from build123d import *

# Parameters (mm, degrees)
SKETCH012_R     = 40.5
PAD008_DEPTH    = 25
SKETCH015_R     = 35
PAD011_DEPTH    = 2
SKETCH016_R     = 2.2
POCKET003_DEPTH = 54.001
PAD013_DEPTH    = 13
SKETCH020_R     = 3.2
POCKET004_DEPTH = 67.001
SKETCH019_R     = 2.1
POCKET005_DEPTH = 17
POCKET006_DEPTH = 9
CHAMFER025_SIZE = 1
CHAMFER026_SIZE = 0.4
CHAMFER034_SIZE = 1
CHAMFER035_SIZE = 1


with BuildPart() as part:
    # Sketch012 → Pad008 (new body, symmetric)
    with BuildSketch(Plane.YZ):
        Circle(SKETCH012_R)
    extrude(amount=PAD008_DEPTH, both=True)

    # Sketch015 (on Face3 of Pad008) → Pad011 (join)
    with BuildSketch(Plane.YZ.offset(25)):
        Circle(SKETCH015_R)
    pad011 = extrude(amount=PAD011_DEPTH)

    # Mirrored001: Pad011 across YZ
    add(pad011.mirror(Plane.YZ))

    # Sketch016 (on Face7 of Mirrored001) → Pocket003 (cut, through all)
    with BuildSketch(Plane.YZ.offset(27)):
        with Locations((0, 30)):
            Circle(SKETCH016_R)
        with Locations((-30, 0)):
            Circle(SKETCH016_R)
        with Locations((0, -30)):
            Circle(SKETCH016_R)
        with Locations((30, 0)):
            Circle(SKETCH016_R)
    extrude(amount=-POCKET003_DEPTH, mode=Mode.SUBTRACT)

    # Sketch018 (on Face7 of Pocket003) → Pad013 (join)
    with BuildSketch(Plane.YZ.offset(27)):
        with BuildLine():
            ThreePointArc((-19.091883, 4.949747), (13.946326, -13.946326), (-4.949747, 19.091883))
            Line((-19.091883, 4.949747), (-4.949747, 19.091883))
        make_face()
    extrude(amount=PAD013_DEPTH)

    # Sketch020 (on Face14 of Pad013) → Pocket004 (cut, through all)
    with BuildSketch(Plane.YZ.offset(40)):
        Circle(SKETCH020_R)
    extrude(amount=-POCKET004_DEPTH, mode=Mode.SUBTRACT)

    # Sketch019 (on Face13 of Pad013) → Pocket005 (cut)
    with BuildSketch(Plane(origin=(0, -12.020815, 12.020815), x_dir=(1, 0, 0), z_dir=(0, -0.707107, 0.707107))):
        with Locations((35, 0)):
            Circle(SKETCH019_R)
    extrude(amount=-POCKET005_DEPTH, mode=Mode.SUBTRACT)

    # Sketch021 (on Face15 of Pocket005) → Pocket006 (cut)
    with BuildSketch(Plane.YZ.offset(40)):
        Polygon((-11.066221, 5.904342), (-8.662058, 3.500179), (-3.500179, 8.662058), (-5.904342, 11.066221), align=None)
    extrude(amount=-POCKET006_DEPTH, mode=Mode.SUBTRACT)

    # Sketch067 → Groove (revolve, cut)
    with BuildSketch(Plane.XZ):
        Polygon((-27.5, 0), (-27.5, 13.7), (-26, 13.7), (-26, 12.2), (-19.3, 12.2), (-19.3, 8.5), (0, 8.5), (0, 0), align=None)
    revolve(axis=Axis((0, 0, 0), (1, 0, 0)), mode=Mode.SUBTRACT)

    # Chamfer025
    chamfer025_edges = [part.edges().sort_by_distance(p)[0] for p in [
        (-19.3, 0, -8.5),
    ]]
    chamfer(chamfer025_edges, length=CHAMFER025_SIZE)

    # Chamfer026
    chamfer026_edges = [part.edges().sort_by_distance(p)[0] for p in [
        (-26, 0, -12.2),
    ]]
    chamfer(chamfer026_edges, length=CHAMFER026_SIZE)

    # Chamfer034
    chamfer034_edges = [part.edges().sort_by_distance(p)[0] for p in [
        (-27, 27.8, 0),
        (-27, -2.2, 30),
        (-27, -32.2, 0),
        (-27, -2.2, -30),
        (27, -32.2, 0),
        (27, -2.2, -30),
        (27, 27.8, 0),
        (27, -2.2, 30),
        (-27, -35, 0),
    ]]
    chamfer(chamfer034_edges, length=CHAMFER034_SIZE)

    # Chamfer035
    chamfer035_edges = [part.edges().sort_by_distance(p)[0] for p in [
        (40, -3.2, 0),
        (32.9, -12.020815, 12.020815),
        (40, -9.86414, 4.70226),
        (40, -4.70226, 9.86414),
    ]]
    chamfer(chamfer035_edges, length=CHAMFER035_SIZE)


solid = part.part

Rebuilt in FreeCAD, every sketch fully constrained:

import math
import FreeCAD as App
import Part
import Sketcher
Q = App.Units.Quantity


def edges_at(feature, points):
    """Names of the edges that pass closest to the given points."""
    edges = feature.Shape.Edges
    near = lambda p: min(range(len(edges)), key=lambda i: edges[i].distToShape(Part.Vertex(*p))[0])
    return sorted({f"Edge{near(p) + 1}" for p in points})


def add_polygon(sketch, points):
    """Adds a closed chain of lines whose ends are joined by coincident constraints."""
    first, n = sketch.GeometryCount, len(points)
    for a, b in zip(points, points[1:] + points[:1]):
        sketch.addGeometry(Part.LineSegment(App.Vector(*a, 0), App.Vector(*b, 0)), False)
    for i in range(n):
        sketch.addConstraint(Sketcher.Constraint("Coincident", first + i, 2, first + (i + 1) % n, 1))

doc = App.newDocument("Part")
body = doc.addObject("PartDesign::Body", "Body")

sketch1 = doc.addObject("Sketcher::SketchObject", "Sketch")
body.addObject(sketch1)
sketch1.AttachmentSupport = (doc.YZ_Plane, [""])
sketch1.MapMode = "FlatFace"
sketch1.addGeometry(Part.Circle(App.Vector(0, 0, 0), App.Vector(0, 0, 1), 40), False)
sketch1.addConstraint([
    Sketcher.Constraint("Coincident", 0, 3, -1, 1),
    Sketcher.Constraint("Diameter", 0, 81.0),
])
pad1 = doc.addObject("PartDesign::Pad", "Pad")
body.addObject(pad1)
pad1.Profile = sketch1
pad1.Length = 50
pad1.Midplane = True

sketch2 = doc.addObject("Sketcher::SketchObject", "Sketch001")
body.addObject(sketch2)
sketch2.AttachmentSupport = (doc.YZ_Plane, [""])
sketch2.MapMode = "FlatFace"
sketch2.AttachmentOffset = App.Placement(App.Vector(0, 0, 25), App.Rotation())
sketch2.addGeometry(Part.Circle(App.Vector(0, 0, 0), App.Vector(0, 0, 1), 35), False)
sketch2.addConstraint([
    Sketcher.Constraint("Coincident", 0, 3, -1, 1),
    Sketcher.Constraint("Diameter", 0, 70.0),
])
pad2 = doc.addObject("PartDesign::Pad", "Pad001")
body.addObject(pad2)
pad2.Profile = sketch2
pad2.Length = 2
doc.recompute()

mirrored = doc.addObject("PartDesign::Mirrored", "Mirrored")
body.addObject(mirrored)
mirrored.Originals = [pad2]
mirrored.MirrorPlane = (doc.YZ_Plane, [""])
body.Tip = mirrored

sketch3 = doc.addObject("Sketcher::SketchObject", "Sketch002")
body.addObject(sketch3)
sketch3.AttachmentSupport = (doc.YZ_Plane, [""])
sketch3.MapMode = "FlatFace"
sketch3.AttachmentOffset = App.Placement(App.Vector(0, 0, 27), App.Rotation())
sketch3.addGeometry([
    Part.Circle(App.Vector(0, 30, 0), App.Vector(0, 0, 1), 2.2),
    Part.Circle(App.Vector(-30, 0, 0), App.Vector(0, 0, 1), 2.2),
    Part.Circle(App.Vector(0, -30, 0), App.Vector(0, 0, 1), 2.2),
    Part.Circle(App.Vector(30, 0, 0), App.Vector(0, 0, 1), 2.2),
], False)
sketch3.addConstraint([
    Sketcher.Constraint("Equal", 0, 1),
    Sketcher.Constraint("Equal", 1, 2),
    Sketcher.Constraint("Equal", 2, 3),
    Sketcher.Constraint("Symmetric", 0, 3, 2, 3, -1, 1),
    Sketcher.Constraint("Symmetric", 1, 3, 3, 3, -1, 1),
    Sketcher.Constraint("PointOnObject", 0, 3, -2),
    Sketcher.Constraint("PointOnObject", 1, 3, -1),
    Sketcher.Constraint("Diameter", 0, 4.4),
    Sketcher.Constraint("DistanceY", -1, 1, 0, 3, 30.0),
    Sketcher.Constraint("DistanceX", 1, 3, -1, 1, 30.0),
])
pocket1 = doc.addObject("PartDesign::Pocket", "Pocket")
body.addObject(pocket1)
pocket1.Profile = sketch3
pocket1.Type = "ThroughAll"

sketch4 = doc.addObject("Sketcher::SketchObject", "Sketch003")
body.addObject(sketch4)
sketch4.AttachmentSupport = (doc.YZ_Plane, [""])
sketch4.MapMode = "FlatFace"
sketch4.AttachmentOffset = App.Placement(App.Vector(0, 0, 27), App.Rotation())
sketch4.addGeometry([
    Part.ArcOfCircle(Part.Circle(App.Vector(0, 0, 0), App.Vector(0, 0, 1), 20), math.radians(165), math.radians(465)),
    Part.LineSegment(App.Vector(-5, 19, 0), App.Vector(-19, 5, 0)),
], False)
sketch4.addConstraint([
    Sketcher.Constraint("Coincident", 0, 1, 1, 2),
    Sketcher.Constraint("Coincident", 1, 1, 0, 2),
    Sketcher.Constraint("Coincident", 0, 3, -1, 1),
    Sketcher.Constraint("Angle", 1, Q("-135 deg")),
    Sketcher.Constraint("Distance", 1, 20.000001),
    Sketcher.Constraint("Radius", 0, 19.723083),
])
pad3 = doc.addObject("PartDesign::Pad", "Pad002")
body.addObject(pad3)
pad3.Profile = sketch4
pad3.Length = 13

sketch5 = doc.addObject("Sketcher::SketchObject", "Sketch004")
body.addObject(sketch5)
sketch5.AttachmentSupport = (doc.YZ_Plane, [""])
sketch5.MapMode = "FlatFace"
sketch5.AttachmentOffset = App.Placement(App.Vector(0, 0, 40), App.Rotation())
sketch5.addGeometry(Part.Circle(App.Vector(0, 0, 0), App.Vector(0, 0, 1), 3.2), False)
sketch5.addConstraint([
    Sketcher.Constraint("Coincident", 0, 3, -1, 1),
    Sketcher.Constraint("Diameter", 0, 6.4),
])
pocket2 = doc.addObject("PartDesign::Pocket", "Pocket001")
body.addObject(pocket2)
pocket2.Profile = sketch5
pocket2.Type = "ThroughAll"

sketch6 = doc.addObject("Sketcher::SketchObject", "Sketch005")
body.addObject(sketch6)
sketch6.Placement = App.Placement(App.Vector(0, -12.020815, 12.020815), App.Rotation(App.Vector(1, 0, 0), App.Vector(0, 0.707106781, 0.707106781), App.Vector(0, -0.707106781, 0.707106781), "ZXY"))
sketch6.addGeometry(Part.Circle(App.Vector(35, 0, 0), App.Vector(0, 0, 1), 2.1), False)
sketch6.addConstraint([
    Sketcher.Constraint("PointOnObject", 0, 3, -1),
    Sketcher.Constraint("Diameter", 0, 4.2),
    Sketcher.Constraint("DistanceX", -1, 1, 0, 3, 35.0),
])
pocket3 = doc.addObject("PartDesign::Pocket", "Pocket002")
body.addObject(pocket3)
pocket3.Profile = sketch6
pocket3.Length = 17

sketch7 = doc.addObject("Sketcher::SketchObject", "Sketch006")
body.addObject(sketch7)
sketch7.AttachmentSupport = (doc.YZ_Plane, [""])
sketch7.MapMode = "FlatFace"
sketch7.AttachmentOffset = App.Placement(App.Vector(0, 0, 40), App.Rotation())
add_polygon(sketch7, [(-11.1, 5.9), (-8.7, 3.5), (-3.5, 8.7), (-5.9, 11.1)])
sketch7.addConstraint([
    Sketcher.Constraint("Perpendicular", 0, 1),
    Sketcher.Constraint("Perpendicular", 1, 2),
    Sketcher.Constraint("Perpendicular", 2, 3),
    Sketcher.Constraint("Angle", 0, Q("-45 deg")),
    Sketcher.Constraint("Distance", 0, 3.4),
    Sketcher.Constraint("Distance", 1, 7.299999),
    Sketcher.Constraint("DistanceY", -1, 1, 0, 2, 3.500179),
    Sketcher.Constraint("DistanceX", 1, 2, -1, 1, 3.500179),
])
pocket4 = doc.addObject("PartDesign::Pocket", "Pocket003")
body.addObject(pocket4)
pocket4.Profile = sketch7
pocket4.Length = 9

sketch8 = doc.addObject("Sketcher::SketchObject", "Sketch007")
body.addObject(sketch8)
sketch8.AttachmentSupport = (doc.XZ_Plane, [""])
sketch8.MapMode = "FlatFace"
add_polygon(sketch8, [(-27.5, 13.7), (-27.5, 0), (0, 0), (0, 8.5), (-19.3, 8.5), (-19.3, 12.2), (-26, 12.2), (-26, 13.7)])
sketch8.addConstraint([
    Sketcher.Constraint("Vertical", 0),
    Sketcher.Constraint("Horizontal", 1),
    Sketcher.Constraint("Vertical", 2),
    Sketcher.Constraint("Horizontal", 3),
    Sketcher.Constraint("Vertical", 4),
    Sketcher.Constraint("Horizontal", 5),
    Sketcher.Constraint("Vertical", 6),
    Sketcher.Constraint("Horizontal", 7),
    Sketcher.Constraint("Coincident", 1, 2, -1, 1),
    Sketcher.Constraint("Equal", 7, 6),
    Sketcher.Constraint("DistanceX", 1, 1, 1, 2, 27.5),
    Sketcher.Constraint("DistanceX", 3, 2, 3, 1, 19.3),
    Sketcher.Constraint("DistanceX", 5, 2, 5, 1, 6.7),
    Sketcher.Constraint("DistanceY", 0, 2, 0, 1, 13.7),
    Sketcher.Constraint("DistanceY", 2, 1, 2, 2, 8.5),
])
groove = doc.addObject("PartDesign::Groove", "Groove")
body.addObject(groove)
groove.Profile = sketch8
groove.ReferenceAxis = (sketch8, ["H_Axis"])
groove.Angle = 360
doc.recompute()

chamfer = doc.addObject("PartDesign::Chamfer", "Chamfer")
body.addObject(chamfer)
chamfer.Base = (groove, edges_at(groove, [(-19.3, 0, -8.5)]))
chamfer.Size = 1
doc.recompute()

chamfer2 = doc.addObject("PartDesign::Chamfer", "Chamfer001")
body.addObject(chamfer2)
chamfer2.Base = (chamfer, edges_at(chamfer, [(-26, 0, -12.2)]))
chamfer2.Size = 0.4
doc.recompute()

chamfer3 = doc.addObject("PartDesign::Chamfer", "Chamfer002")
body.addObject(chamfer3)
chamfer3.Base = (chamfer2, edges_at(chamfer2, [
    (-27, 27.8, 0),
    (-27, -2.2, 30),
    (-27, -32.2, 0),
    (-27, -2.2, -30),
    (27, -32.2, 0),
    (27, -2.2, -30),
    (27, 27.8, 0),
    (27, -2.2, 30),
    (-27, -35, 0),
]))
chamfer3.Size = 1
doc.recompute()

chamfer4 = doc.addObject("PartDesign::Chamfer", "Chamfer003")
body.addObject(chamfer4)
chamfer4.Base = (chamfer3, edges_at(chamfer3, [
    (40, -3.2, 0),
    (32.9, -12.021, 12.021),
    (40, -9.864, 4.702),
    (40, -4.702, 9.864),
]))
chamfer4.Size = 1

doc.recompute()
